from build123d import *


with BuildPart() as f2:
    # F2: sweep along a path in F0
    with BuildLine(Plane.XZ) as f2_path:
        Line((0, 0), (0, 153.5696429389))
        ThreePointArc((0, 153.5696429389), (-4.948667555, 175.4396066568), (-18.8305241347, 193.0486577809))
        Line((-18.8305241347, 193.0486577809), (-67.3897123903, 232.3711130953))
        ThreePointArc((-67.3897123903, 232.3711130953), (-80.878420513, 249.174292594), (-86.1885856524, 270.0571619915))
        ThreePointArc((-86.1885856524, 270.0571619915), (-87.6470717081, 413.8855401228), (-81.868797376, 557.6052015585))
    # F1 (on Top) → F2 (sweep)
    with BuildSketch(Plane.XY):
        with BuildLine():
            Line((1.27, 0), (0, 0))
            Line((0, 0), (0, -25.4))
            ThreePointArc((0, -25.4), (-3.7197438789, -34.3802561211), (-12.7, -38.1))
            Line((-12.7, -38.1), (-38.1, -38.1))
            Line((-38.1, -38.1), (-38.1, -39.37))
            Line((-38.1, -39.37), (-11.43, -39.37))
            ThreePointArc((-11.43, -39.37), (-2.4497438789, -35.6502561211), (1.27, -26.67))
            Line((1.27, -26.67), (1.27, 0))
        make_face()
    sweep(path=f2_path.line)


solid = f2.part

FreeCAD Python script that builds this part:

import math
import FreeCAD as App
import Part
import Sketcher

V = App.Vector
Q = App.Units.Quantity

doc = App.newDocument("Part")
body = doc.addObject("PartDesign::Body", "Body")

# Sketch on XY plane
sketch1 = doc.addObject("Sketcher::SketchObject", "Sketch")
body.addObject(sketch1)
sketch1.AttachmentSupport = (doc.XY_Plane, [""])
sketch1.MapMode = "FlatFace"
sketch1.addGeometry([
    Part.LineSegment(V(1.3, 0, 0), V(0, 0, 0)),  # 0
    Part.LineSegment(V(0, 0, 0), V(0, -25.4, 0)),  # 1
    Part.ArcOfCircle(Part.Circle(V(-12.7, -25.4, 0), V(0, 0, 1), 12.7), math.radians(-90), math.radians(0)),  # 2
    Part.LineSegment(V(-12.7, -38.1, 0), V(-38.1, -38.1, 0)),  # 3
    Part.LineSegment(V(-38.1, -38.1, 0), V(-38.1, -39.4, 0)),  # 4
    Part.LineSegment(V(-38.1, -39.4, 0), V(-11.4, -39.4, 0)),  # 5
    Part.ArcOfCircle(Part.Circle(V(-11.4, -26.7, 0), V(0, 0, 1), 12.7), math.radians(-90), math.radians(0)),  # 6
    Part.LineSegment(V(1.3, -26.7, 0), V(1.3, 0, 0)),  # 7
], False)
sketch1.addConstraint([
    Sketcher.Constraint("Coincident", 0, 2, 1, 1),
    Sketcher.Constraint("Tangent", 1, 2, 2, 2),
    Sketcher.Constraint("Tangent", 2, 1, 3, 1),
    Sketcher.Constraint("Coincident", 3, 2, 4, 1),
    Sketcher.Constraint("Coincident", 4, 2, 5, 1),
    Sketcher.Constraint("Tangent", 5, 2, 6, 1),
    Sketcher.Constraint("Tangent", 6, 2, 7, 1),
    Sketcher.Constraint("Coincident", 7, 2, 0, 1),
    Sketcher.Constraint("Horizontal", 0),
    Sketcher.Constraint("Vertical", 1),
    Sketcher.Constraint("Horizontal", 3),
    Sketcher.Constraint("Vertical", 4),
    Sketcher.Constraint("Horizontal", 5),
    Sketcher.Constraint("Vertical", 7),
    Sketcher.Constraint("Coincident", 0, 2, -1, 1),
    Sketcher.Constraint("Equal", 2, 6),
    Sketcher.Constraint("Equal", 3, 1),
    Sketcher.Constraint("Equal", 0, 4),
    Sketcher.Constraint("Radius", 2, Q("0.5 in")),
    Sketcher.Constraint("DistanceX", 3, 2, 3, 1, Q("1 in")),
    Sketcher.Constraint("DistanceX", 0, 2, 0, 1, Q("0.05 in")),
])

# Sketch on XZ plane
sketch2 = doc.addObject("Sketcher::SketchObject", "Sketch001")
body.addObject(sketch2)
sketch2.AttachmentSupport = (doc.XZ_Plane, [""])
sketch2.MapMode = "FlatFace"
sketch2.addGeometry([
    Part.LineSegment(V(0, 0, 0), V(0, 154, 0)),  # 0
    Part.ArcOfCircle(Part.Circle(V(-51, 154, 0), V(0, 0, 1), 51), math.radians(0), math.radians(51)),  # 1
    Part.LineSegment(V(-19, 193, 0), V(-67, 232, 0)),  # 2
    Part.ArcOfCircle(Part.Circle(V(-35, 272, 0), V(0, 0, 1), 51), math.radians(-178), math.radians(-129)),  # 3
    Part.ArcOfCircle(Part.Circle(V(2771, 371, 0), V(0, 0, 1), 2859), math.radians(176.26), math.radians(182.02)),  # 4
], False)
sketch2.addConstraint([
    Sketcher.Constraint("Tangent", 0, 2, 1, 1),
    Sketcher.Constraint("Tangent", 1, 2, 2, 1),
    Sketcher.Constraint("Tangent", 2, 2, 3, 2),
    Sketcher.Constraint("Tangent", 3, 1, 4, 2),
    Sketcher.Constraint("Vertical", 0),
    Sketcher.Constraint("Coincident", 0, 1, -1, 1),
    Sketcher.Constraint("Equal", 1, 3),
    Sketcher.Constraint("Radius", 1, Q("2 in")),
    Sketcher.Constraint("Radius", 4, Q("112.54 in")),
    Sketcher.Constraint("Angle", 2, Q("141 deg")),
    Sketcher.Constraint("Distance", 2, Q("2.46 in")),
    Sketcher.Constraint("DistanceY", -1, 1, 4, 1, 557.605202),
    Sketcher.Constraint("DistanceY", 0, 1, 0, 2, 153.569643),
    Sketcher.Constraint("DistanceX", -1, 1, 4, 3, 2770.54642),
])
doc.recompute()

additivepipe = doc.addObject("PartDesign::AdditivePipe", "AdditivePipe")
body.addObject(additivepipe)
additivepipe.Profile = sketch1
additivepipe.Spine = (sketch2, ["Edge1", "Edge2", "Edge3", "Edge4", "Edge5"])

doc.recompute()
